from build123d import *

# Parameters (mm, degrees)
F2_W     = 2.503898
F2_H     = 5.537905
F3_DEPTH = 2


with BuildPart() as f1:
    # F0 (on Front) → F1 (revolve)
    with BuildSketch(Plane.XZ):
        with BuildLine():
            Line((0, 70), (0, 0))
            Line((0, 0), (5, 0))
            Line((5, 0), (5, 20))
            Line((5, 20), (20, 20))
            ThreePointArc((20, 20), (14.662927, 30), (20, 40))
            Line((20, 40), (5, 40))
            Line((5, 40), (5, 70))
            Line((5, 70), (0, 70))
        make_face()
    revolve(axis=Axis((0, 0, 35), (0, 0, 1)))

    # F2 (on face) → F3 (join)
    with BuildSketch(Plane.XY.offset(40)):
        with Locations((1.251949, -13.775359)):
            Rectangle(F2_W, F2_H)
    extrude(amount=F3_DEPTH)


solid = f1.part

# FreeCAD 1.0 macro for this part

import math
import FreeCAD as App
import Part
import Sketcher
from FreeCAD import Vector


def add_polygon(sketch, points):
    """Adds a closed chain of lines whose ends are joined by coincident constraints."""
    first, n = sketch.GeometryCount, len(points)
    for a, b in zip(points, points[1:] + points[:1]):
        sketch.addGeometry(Part.LineSegment(App.Vector(*a, 0), App.Vector(*b, 0)), False)
    for i in range(n):
        sketch.addConstraint(Sketcher.Constraint("Coincident", first + i, 2, first + (i + 1) % n, 1))

doc = App.newDocument("Part")
body = doc.addObject("PartDesign::Body", "Body")

# Sketch on XZ plane
sketch1 = body.newObject("Sketcher::SketchObject", "Sketch")
sketch1.AttachmentSupport = (doc.getObject("XZ_Plane"), [""])
sketch1.MapMode = "FlatFace"
sketch1.addGeometry([
    Part.LineSegment(Vector(0, 70, 0), Vector(0, 0, 0)),  # 0
    Part.LineSegment(Vector(0, 0, 0), Vector(5, 0, 0)),  # 1
    Part.LineSegment(Vector(5, 0, 0), Vector(5, 20, 0)),  # 2
    Part.LineSegment(Vector(5, 20, 0), Vector(20, 20, 0)),  # 3
    Part.ArcOfCircle(Part.Circle(Vector(27, 30, 0), Vector(0, 0, 1), 12), math.radians(124), math.radians(236)),  # 4
    Part.LineSegment(Vector(20, 40, 0), Vector(5, 40, 0)),  # 5
    Part.LineSegment(Vector(5, 40, 0), Vector(5, 70, 0)),  # 6
    Part.LineSegment(Vector(5, 70, 0), Vector(0, 70, 0)),  # 7
], False)
sketch1.addConstraint([
    Sketcher.Constraint("Coincident", 0, 2, 1, 1),
    Sketcher.Constraint("Coincident", 1, 2, 2, 1),
    Sketcher.Constraint("Coincident", 2, 2, 3, 1),
    Sketcher.Constraint("Coincident", 3, 2, 4, 2),
    Sketcher.Constraint("Coincident", 4, 1, 5, 1),
    Sketcher.Constraint("Coincident", 5, 2, 6, 1),
    Sketcher.Constraint("Coincident", 6, 2, 7, 1),
    Sketcher.Constraint("Coincident", 7, 2, 0, 1),
    Sketcher.Constraint("Vertical", 0),
    Sketcher.Constraint("Horizontal", 1),
    Sketcher.Constraint("Vertical", 2),
    Sketcher.Constraint("Horizontal", 3),
    Sketcher.Constraint("Horizontal", 5),
    Sketcher.Constraint("Vertical", 6),
    Sketcher.Constraint("Horizontal", 7),
    Sketcher.Constraint("Coincident", 0, 2, -1, 1),
    Sketcher.Constraint("Vertical", 3, 2, 4, 1),
    Sketcher.Constraint("Vertical", 2, 2, 5, 2),
    Sketcher.Constraint("DistanceX", 1, 1, 1, 2, 5.0),
    Sketcher.Constraint("DistanceX", 3, 1, 3, 2, 15.0),
    Sketcher.Constraint("DistanceY", 0, 2, 0, 1, 70.0),
    Sketcher.Constraint("DistanceY", 2, 1, 2, 2, 20.0),
    Sketcher.Constraint("DistanceY", 6, 1, 6, 2, 30.0),
    Sketcher.Constraint("Radius", 4, 12.036967),
])
revolution = body.newObject("PartDesign::Revolution", "Revolution")
revolution.Profile = sketch1
revolution.ReferenceAxis = (sketch1, ["V_Axis"])
revolution.Angle = 360

# Sketch on XY plane
sketch2 = body.newObject("Sketcher::SketchObject", "Sketch001")
sketch2.AttachmentSupport = (doc.getObject("XY_Plane"), [""])
sketch2.MapMode = "FlatFace"
sketch2.AttachmentOffset = App.Placement(Vector(0, 0, 40), App.Rotation())
add_polygon(sketch2, [(0, -11), (0, -16.5), (2.5, -16.5), (2.5, -11)])  # lines 0-3
sketch2.addConstraint([
    Sketcher.Constraint("Vertical", 0),
    Sketcher.Constraint("Horizontal", 1),
    Sketcher.Constraint("Vertical", 2),
    Sketcher.Constraint("Horizontal", 3),
    Sketcher.Constraint("PointOnObject", 0, 2, -2),
    Sketcher.Constraint("DistanceX", 1, 1, 1, 2, 2.503898),
    Sketcher.Constraint("DistanceY", 0, 2, 0, 1, 5.537905),
    Sketcher.Constraint("DistanceY", 0, 2, -1, 1, 16.544311),
])
pad1 = body.newObject("PartDesign::Pad", "Pad")
pad1.Profile = sketch2
pad1.Length = 2

doc.recompute()
